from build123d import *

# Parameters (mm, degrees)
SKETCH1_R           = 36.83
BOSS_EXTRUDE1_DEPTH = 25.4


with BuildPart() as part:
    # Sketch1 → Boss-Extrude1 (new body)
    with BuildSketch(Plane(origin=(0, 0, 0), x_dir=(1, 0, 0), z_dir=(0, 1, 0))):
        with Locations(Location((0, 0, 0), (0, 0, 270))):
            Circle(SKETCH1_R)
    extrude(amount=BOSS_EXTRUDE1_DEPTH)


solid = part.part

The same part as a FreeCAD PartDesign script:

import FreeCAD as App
import Part
import Sketcher
from FreeCAD import Vector
Q = App.Units.Quantity

doc = App.newDocument("Part")
body = doc.addObject("PartDesign::Body", "Body")

# Sketch on XZ plane
sketch1 = body.newObject("Sketcher::SketchObject", "Sketch")
sketch1.AttachmentSupport = (doc.getObject("XZ_Plane"), [""])
sketch1.MapMode = "FlatFace"
sketch1.addGeometry(Part.Circle(Vector(0, 0, 0), Vector(0, 0, 1), 36.83), False)
sketch1.addConstraint(Sketcher.Constraint("Coincident", 0, 3, -1, 1))
sketch1.addConstraint(Sketcher.Constraint("Diameter", 0, Q("2.9 in")))
pad1 = body.newObject("PartDesign::Pad", "Pad")
pad1.Profile = sketch1
pad1.Length = Q("1 in")
pad1.Reversed = True

doc.recompute()
